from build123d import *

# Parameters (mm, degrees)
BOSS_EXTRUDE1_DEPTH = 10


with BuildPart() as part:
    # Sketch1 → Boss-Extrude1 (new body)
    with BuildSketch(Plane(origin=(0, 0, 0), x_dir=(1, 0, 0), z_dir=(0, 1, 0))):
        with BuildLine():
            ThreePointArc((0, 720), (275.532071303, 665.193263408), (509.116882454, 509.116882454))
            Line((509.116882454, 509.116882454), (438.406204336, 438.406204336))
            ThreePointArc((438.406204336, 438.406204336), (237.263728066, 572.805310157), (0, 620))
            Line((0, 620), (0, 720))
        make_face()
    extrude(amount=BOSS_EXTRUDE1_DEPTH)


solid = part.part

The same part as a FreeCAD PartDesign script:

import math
import FreeCAD as App
import Part
import Sketcher
from FreeCAD import Vector
Q = App.Units.Quantity

doc = App.newDocument("Part")
body = doc.addObject("PartDesign::Body", "Body")

# Sketch on XZ plane
sketch1 = body.newObject("Sketcher::SketchObject", "Sketch")
sketch1.AttachmentSupport = (doc.getObject("XZ_Plane"), [""])
sketch1.MapMode = "FlatFace"
sketch1.addGeometry(Part.ArcOfCircle(Part.Circle(Vector(0, 0, 0), Vector(0, 0, 1), 720), math.radians(-90), math.radians(-45)), False)
sketch1.addGeometry(Part.LineSegment(Vector(0, -720, 0), Vector(0, -620, 0)), False)
sketch1.addGeometry(Part.ArcOfCircle(Part.Circle(Vector(0, 0, 0), Vector(0, 0, 1), 620), math.radians(-90), math.radians(-45)), False)
sketch1.addGeometry(Part.LineSegment(Vector(438, -438, 0), Vector(509, -509, 0)), False)
sketch1.addConstraint(Sketcher.Constraint("Coincident", 0, 1, 1, 1))
sketch1.addConstraint(Sketcher.Constraint("Coincident", 1, 2, 2, 1))
sketch1.addConstraint(Sketcher.Constraint("Coincident", 2, 2, 3, 1))
sketch1.addConstraint(Sketcher.Constraint("Coincident", 3, 2, 0, 2))
sketch1.addConstraint(Sketcher.Constraint("Vertical", 1))
sketch1.addConstraint(Sketcher.Constraint("Coincident", 0, 3, -1, 1))
sketch1.addConstraint(Sketcher.Constraint("Coincident", 2, 3, -1, 1))
sketch1.addConstraint(Sketcher.Constraint("PointOnObject", 1, 2, -2))
sketch1.addConstraint(Sketcher.Constraint("Radius", 0, Q("720 mm")))
sketch1.addConstraint(Sketcher.Constraint("Radius", 2, Q("620 mm")))
sketch1.addConstraint(Sketcher.Constraint("Angle", 3, Q("-45 deg")))
sketch1.addConstraint(Sketcher.Constraint("DistanceX", -1, 1, 3, 2, Q("509.116882 mm")))
pad1 = body.newObject("PartDesign::Pad", "Pad")
pad1.Profile = sketch1
pad1.Length = 10
pad1.Reversed = True

doc.recompute()
